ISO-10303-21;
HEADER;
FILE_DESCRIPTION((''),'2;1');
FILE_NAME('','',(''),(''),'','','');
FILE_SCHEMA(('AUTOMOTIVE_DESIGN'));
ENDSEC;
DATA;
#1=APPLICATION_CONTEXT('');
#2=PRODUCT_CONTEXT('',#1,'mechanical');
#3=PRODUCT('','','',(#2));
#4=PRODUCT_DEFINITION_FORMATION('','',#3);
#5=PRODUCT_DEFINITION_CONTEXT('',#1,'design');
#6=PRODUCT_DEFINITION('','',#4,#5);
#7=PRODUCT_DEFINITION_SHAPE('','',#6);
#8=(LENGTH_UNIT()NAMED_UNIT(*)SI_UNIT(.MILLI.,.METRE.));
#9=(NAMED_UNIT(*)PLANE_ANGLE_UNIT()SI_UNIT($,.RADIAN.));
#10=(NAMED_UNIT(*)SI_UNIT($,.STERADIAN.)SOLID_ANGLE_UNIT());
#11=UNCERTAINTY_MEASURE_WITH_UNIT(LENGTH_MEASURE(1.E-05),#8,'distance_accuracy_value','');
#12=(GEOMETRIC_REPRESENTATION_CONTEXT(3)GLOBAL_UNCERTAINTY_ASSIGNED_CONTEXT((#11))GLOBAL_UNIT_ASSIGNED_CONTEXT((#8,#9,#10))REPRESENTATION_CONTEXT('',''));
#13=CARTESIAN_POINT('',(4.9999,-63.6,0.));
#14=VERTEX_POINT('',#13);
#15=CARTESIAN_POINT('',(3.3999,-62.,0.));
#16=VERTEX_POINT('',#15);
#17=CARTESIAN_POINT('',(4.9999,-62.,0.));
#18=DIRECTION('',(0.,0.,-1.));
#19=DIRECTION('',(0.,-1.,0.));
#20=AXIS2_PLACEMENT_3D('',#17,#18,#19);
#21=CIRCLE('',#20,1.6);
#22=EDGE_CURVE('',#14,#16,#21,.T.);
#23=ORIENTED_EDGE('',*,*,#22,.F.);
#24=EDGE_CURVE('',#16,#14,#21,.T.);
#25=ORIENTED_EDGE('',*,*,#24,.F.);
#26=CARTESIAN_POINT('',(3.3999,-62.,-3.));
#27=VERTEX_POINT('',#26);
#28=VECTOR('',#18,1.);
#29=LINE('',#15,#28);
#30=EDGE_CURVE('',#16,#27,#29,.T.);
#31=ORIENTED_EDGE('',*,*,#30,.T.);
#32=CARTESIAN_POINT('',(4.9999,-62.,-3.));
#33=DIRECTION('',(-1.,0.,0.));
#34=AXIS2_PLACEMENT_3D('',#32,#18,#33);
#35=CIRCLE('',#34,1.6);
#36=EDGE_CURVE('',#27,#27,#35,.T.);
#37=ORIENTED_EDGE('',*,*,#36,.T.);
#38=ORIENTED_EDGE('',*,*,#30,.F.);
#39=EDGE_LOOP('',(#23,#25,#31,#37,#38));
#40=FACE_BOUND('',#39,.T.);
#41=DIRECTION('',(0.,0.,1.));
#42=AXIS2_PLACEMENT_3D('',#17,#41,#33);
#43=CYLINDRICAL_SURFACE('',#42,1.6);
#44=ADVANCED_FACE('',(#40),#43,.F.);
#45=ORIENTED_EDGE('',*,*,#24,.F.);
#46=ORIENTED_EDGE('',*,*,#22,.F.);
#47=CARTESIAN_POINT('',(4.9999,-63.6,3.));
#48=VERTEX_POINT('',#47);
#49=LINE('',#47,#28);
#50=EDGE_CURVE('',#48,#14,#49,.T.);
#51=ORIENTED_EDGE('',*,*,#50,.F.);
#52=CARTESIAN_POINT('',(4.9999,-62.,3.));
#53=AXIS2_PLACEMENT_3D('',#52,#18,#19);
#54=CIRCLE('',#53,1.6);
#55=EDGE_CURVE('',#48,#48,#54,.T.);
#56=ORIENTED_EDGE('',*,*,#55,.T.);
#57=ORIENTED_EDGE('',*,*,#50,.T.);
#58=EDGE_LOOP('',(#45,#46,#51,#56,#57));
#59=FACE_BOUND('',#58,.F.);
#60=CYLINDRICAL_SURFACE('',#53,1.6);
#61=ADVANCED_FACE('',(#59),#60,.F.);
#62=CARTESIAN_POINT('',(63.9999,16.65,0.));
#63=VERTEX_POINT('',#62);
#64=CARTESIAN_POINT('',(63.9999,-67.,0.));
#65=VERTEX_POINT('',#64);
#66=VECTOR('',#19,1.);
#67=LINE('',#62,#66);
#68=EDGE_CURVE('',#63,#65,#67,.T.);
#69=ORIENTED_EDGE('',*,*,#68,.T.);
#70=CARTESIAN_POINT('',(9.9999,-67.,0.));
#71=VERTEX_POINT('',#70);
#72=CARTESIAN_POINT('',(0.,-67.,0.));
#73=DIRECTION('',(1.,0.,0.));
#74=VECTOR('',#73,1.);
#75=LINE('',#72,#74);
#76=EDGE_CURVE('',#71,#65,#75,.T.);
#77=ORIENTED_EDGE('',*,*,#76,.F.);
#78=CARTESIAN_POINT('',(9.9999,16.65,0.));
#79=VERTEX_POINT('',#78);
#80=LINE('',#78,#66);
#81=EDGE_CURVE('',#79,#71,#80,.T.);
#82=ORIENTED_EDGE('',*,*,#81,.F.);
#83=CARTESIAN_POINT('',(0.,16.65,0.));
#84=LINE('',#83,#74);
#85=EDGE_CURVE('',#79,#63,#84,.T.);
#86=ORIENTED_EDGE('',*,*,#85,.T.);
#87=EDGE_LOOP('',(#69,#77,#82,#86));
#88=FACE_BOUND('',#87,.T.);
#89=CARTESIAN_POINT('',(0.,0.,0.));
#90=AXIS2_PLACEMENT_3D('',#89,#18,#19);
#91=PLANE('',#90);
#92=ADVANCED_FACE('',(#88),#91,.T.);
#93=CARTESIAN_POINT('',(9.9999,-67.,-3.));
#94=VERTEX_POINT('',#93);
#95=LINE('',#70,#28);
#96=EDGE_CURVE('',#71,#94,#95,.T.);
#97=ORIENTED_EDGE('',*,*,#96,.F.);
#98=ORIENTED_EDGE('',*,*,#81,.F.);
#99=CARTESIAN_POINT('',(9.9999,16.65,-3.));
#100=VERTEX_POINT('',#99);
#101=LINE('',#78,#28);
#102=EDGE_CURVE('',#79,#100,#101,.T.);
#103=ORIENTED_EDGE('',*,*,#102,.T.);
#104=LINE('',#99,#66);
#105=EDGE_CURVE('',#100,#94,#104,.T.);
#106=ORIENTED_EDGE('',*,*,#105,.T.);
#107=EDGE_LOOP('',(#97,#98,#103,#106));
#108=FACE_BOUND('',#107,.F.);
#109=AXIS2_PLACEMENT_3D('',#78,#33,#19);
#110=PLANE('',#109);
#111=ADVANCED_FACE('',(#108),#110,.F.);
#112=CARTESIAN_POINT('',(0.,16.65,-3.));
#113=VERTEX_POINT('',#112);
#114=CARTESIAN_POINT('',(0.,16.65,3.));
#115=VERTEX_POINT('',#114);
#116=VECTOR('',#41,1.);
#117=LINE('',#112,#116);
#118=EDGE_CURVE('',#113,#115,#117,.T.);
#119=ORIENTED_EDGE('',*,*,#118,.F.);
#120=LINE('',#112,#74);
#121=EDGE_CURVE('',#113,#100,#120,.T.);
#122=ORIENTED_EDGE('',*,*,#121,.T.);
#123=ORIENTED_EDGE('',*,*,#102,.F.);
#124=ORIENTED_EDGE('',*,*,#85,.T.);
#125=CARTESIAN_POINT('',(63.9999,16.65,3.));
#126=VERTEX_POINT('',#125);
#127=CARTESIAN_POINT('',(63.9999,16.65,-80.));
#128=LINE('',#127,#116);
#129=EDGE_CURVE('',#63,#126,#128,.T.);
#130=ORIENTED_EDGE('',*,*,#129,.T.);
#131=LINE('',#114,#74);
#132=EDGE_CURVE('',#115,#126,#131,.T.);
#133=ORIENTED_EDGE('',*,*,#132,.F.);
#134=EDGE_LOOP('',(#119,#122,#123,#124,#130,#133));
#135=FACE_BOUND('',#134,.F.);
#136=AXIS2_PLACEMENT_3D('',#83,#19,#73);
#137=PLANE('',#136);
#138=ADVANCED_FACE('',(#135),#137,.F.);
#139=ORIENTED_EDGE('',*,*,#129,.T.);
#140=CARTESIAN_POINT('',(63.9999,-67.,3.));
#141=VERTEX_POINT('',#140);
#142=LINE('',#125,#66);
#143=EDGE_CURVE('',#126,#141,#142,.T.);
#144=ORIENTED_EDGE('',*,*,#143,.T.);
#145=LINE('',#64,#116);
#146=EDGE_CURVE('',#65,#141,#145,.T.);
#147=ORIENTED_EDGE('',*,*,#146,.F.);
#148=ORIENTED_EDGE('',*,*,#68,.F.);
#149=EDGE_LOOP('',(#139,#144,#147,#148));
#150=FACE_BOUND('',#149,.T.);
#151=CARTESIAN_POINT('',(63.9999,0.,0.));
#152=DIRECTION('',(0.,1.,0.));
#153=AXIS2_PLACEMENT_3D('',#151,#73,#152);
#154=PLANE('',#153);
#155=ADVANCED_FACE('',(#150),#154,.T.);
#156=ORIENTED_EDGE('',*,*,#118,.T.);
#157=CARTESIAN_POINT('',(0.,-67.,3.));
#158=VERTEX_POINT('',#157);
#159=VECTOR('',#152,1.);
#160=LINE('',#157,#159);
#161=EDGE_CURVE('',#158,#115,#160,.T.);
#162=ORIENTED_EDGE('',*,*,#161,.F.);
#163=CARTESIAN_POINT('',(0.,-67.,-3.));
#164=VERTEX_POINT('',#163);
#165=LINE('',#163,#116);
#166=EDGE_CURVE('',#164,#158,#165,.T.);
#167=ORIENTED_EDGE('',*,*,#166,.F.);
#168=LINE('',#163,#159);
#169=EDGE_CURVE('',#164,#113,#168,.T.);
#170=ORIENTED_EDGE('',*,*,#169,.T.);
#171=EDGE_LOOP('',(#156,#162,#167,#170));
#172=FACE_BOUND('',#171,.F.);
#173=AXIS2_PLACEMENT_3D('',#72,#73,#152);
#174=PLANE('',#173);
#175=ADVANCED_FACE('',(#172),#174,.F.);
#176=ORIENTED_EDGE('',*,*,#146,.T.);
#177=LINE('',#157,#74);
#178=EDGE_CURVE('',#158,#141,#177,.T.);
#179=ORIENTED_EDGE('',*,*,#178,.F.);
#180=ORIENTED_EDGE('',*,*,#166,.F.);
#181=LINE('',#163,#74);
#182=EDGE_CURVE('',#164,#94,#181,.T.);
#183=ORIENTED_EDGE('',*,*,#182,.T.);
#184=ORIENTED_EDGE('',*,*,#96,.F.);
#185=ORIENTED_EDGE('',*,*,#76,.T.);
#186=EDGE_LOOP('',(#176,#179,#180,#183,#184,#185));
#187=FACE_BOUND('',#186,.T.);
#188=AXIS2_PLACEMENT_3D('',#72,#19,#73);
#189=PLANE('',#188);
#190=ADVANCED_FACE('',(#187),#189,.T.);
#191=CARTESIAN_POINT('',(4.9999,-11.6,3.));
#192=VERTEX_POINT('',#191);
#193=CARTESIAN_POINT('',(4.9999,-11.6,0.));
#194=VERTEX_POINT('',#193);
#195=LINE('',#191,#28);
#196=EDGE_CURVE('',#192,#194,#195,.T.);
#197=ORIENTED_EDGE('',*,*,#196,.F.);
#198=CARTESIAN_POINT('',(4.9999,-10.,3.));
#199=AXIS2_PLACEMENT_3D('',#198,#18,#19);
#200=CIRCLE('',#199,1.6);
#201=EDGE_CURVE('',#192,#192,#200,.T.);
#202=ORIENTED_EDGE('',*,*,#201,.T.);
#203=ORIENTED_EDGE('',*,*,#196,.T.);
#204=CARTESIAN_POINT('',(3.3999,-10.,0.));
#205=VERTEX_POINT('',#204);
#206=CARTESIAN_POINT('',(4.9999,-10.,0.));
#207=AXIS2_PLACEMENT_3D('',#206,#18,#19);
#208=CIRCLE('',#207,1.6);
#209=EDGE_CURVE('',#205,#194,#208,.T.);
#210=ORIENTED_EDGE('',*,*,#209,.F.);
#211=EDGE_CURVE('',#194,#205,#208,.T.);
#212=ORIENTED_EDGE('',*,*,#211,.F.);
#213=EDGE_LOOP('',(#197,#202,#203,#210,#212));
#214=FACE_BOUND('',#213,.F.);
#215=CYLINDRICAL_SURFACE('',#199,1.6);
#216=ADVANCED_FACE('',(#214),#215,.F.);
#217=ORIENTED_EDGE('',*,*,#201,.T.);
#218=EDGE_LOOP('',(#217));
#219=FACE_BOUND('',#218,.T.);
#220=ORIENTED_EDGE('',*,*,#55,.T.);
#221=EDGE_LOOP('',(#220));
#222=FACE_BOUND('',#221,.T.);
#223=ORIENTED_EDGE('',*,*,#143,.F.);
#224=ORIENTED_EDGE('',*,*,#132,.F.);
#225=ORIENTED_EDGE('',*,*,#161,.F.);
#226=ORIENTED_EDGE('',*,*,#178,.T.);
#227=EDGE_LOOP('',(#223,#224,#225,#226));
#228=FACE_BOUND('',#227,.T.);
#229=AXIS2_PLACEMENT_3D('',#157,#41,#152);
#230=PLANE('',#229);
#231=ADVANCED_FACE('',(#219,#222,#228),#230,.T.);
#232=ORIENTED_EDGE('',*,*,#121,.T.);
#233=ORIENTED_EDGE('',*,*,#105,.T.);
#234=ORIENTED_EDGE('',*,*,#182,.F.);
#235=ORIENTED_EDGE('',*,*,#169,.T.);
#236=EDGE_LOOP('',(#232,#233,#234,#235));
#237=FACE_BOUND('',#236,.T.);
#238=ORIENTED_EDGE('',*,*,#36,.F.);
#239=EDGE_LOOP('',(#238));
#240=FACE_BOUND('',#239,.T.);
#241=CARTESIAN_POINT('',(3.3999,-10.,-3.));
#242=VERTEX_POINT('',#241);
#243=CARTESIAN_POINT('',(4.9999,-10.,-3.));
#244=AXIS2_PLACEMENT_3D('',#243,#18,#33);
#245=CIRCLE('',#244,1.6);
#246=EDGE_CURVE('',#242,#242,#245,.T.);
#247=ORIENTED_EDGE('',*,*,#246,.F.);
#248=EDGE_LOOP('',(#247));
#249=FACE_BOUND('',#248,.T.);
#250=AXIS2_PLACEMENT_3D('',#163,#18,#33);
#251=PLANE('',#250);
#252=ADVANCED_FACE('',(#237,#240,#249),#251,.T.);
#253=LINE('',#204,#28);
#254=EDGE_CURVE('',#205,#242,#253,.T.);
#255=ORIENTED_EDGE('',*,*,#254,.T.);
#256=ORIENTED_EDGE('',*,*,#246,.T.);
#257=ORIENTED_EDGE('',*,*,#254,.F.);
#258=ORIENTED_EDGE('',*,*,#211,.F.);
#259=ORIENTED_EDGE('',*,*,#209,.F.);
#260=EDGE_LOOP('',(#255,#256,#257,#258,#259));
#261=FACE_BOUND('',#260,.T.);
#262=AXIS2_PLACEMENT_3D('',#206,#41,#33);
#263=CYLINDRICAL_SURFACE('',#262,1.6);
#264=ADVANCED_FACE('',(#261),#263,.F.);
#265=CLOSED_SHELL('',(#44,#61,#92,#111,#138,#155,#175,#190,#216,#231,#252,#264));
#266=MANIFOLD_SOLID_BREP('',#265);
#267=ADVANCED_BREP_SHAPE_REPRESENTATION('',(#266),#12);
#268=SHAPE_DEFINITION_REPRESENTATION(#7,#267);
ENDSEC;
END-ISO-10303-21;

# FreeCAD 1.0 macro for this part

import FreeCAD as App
import Part
import Sketcher
Q = App.Units.Quantity


def add_polygon(sketch, points):
    """Adds a closed chain of lines whose ends are joined by coincident constraints."""
    first, n = sketch.GeometryCount, len(points)
    for a, b in zip(points, points[1:] + points[:1]):
        sketch.addGeometry(Part.LineSegment(App.Vector(*a, 0), App.Vector(*b, 0)), False)
    for i in range(n):
        sketch.addConstraint(Sketcher.Constraint("Coincident", first + i, 2, first + (i + 1) % n, 1))

doc = App.newDocument("Part")
params = doc.addObject("Spreadsheet::Sheet", "Params")
for row, (alias, value) in enumerate([
    ("sketch1_height", "3 mm"),
    ("sketch1_width", "83.65 mm"),
    ("pad1_length", "63.9999 mm"),
    ("sketch2_diameter", "3.2 mm"),
    ("hole_diameter", "3.2 mm"),
    ("hole_depth", "5 mm"),
    ("sketch3_diameter", "3.2 mm"),
    ("sketch3_width", "10 mm"),
    ("sketch3_height", "83.65 mm"),
    ("pad2_length", "3 mm"),
], start=1):
    params.set(f"A{row}", alias)
    params.set(f"B{row}", "=" + value)
    params.setAlias(f"B{row}", alias)

body = doc.addObject("PartDesign::Body", "Body")

# Sketch on YZ plane
sketch1 = body.newObject("Sketcher::SketchObject", "Sketch")
sketch1.AttachmentSupport = (doc.getObject("YZ_Plane"), [""])
sketch1.MapMode = "FlatFace"
add_polygon(sketch1, [(-67, 0), (16.6, 0), (16.6, 3), (-67, 3)])  # lines 0-3
sketch1.addConstraint(Sketcher.Constraint("Horizontal", 0))
sketch1.addConstraint(Sketcher.Constraint("Vertical", 1))
sketch1.addConstraint(Sketcher.Constraint("Horizontal", 2))
sketch1.addConstraint(Sketcher.Constraint("Vertical", 3))
sketch1.addConstraint(Sketcher.Constraint("PointOnObject", 0, 2, -1))
sketch1.addConstraint(Sketcher.Constraint("DistanceY", 1, 1, 1, 2, Q("3 mm")))
sketch1.addConstraint(Sketcher.Constraint("DistanceX", 2, 2, -1, 1, Q("67 mm")))
sketch1.addConstraint(Sketcher.Constraint("DistanceX", 0, 1, 0, 2, Q("83.65 mm")))
sketch1.setExpression("Constraints[9]", "Params.sketch1_height")
sketch1.setExpression("Constraints[11]", "Params.sketch1_width")
pad1 = body.newObject("PartDesign::Pad", "Pad")
pad1.Profile = sketch1
pad1.setExpression("Length", "Params.pad1_length")

# Sketch on XY plane
sketch2 = body.newObject("Sketcher::SketchObject", "Sketch001")
sketch2.AttachmentSupport = (doc.getObject("XY_Plane"), [""])
sketch2.MapMode = "FlatFace"
sketch2.AttachmentOffset = App.Placement(App.Vector(0, 0, 3), App.Rotation())
sketch2.addGeometry(Part.Circle(App.Vector(5, -10, 0), App.Vector(0, 0, 1), 1.6), False)
sketch2.addGeometry(Part.Circle(App.Vector(5, -62, 0), App.Vector(0, 0, 1), 1.6), False)
sketch2.addConstraint(Sketcher.Constraint("Equal", 0, 1))
sketch2.addConstraint(Sketcher.Constraint("Vertical", 0, 3, 1, 3))
sketch2.addConstraint(Sketcher.Constraint("Diameter", 0, Q("3.2 mm")))
sketch2.addConstraint(Sketcher.Constraint("DistanceX", -1, 1, 0, 3, Q("5 mm")))
sketch2.addConstraint(Sketcher.Constraint("DistanceY", 0, 3, -1, 1, Q("10 mm")))
sketch2.addConstraint(Sketcher.Constraint("DistanceY", 1, 3, -1, 1, Q("62 mm")))
sketch2.setExpression("Constraints[2]", "Params.sketch2_diameter")
doc.recompute()
hole = body.newObject("PartDesign::Hole", "Hole")
hole.Profile = sketch2
hole.ThreadType = "None"
hole.setExpression("Diameter", "Params.hole_diameter")
hole.DepthType = "Dimension"
hole.setExpression("Depth", "Params.hole_depth")
hole.DrillPoint = "Flat"

# Sketch on XY plane
sketch3 = body.newObject("Sketcher::SketchObject", "Sketch002")
sketch3.AttachmentSupport = (doc.getObject("XY_Plane"), [""])
sketch3.MapMode = "FlatFace"
add_polygon(sketch3, [(0, 16.6), (10, 16.6), (10, -67), (0, -67)])  # lines 0-3
sketch3.addGeometry(Part.Circle(App.Vector(5, -62, 0), App.Vector(0, 0, 1), 1.6), False)  # 4
sketch3.addGeometry(Part.Circle(App.Vector(5, -10, 0), App.Vector(0, 0, 1), 1.6), False)  # 5
sketch3.addConstraint(Sketcher.Constraint("Horizontal", 0))
sketch3.addConstraint(Sketcher.Constraint("Vertical", 1))
sketch3.addConstraint(Sketcher.Constraint("Horizontal", 2))
sketch3.addConstraint(Sketcher.Constraint("Vertical", 3))
sketch3.addConstraint(Sketcher.Constraint("Equal", 4, 5))
sketch3.addConstraint(Sketcher.Constraint("PointOnObject", 2, 2, -2))
sketch3.addConstraint(Sketcher.Constraint("Vertical", 4, 3, 5, 3))
sketch3.addConstraint(Sketcher.Constraint("Diameter", 4, Q("3.2 mm")))
sketch3.addConstraint(Sketcher.Constraint("DistanceX", 0, 1, 0, 2, Q("10 mm")))
sketch3.addConstraint(Sketcher.Constraint("DistanceX", -1, 1, 4, 3, Q("5 mm")))
sketch3.addConstraint(Sketcher.Constraint("DistanceY", 4, 3, -1, 1, Q("62 mm")))
sketch3.addConstraint(Sketcher.Constraint("DistanceY", 5, 3, -1, 1, Q("10 mm")))
sketch3.addConstraint(Sketcher.Constraint("DistanceY", 1, 2, -1, 1, Q("67 mm")))
sketch3.addConstraint(Sketcher.Constraint("DistanceY", 1, 2, 1, 1, Q("83.65 mm")))
sketch3.setExpression("Constraints[11]", "Params.sketch3_diameter")
sketch3.setExpression("Constraints[12]", "Params.sketch3_width")
sketch3.setExpression("Constraints[17]", "Params.sketch3_height")
pad2 = body.newObject("PartDesign::Pad", "Pad001")
pad2.Profile = sketch3
pad2.setExpression("Length", "Params.pad2_length")
pad2.Reversed = True

doc.recompute()
